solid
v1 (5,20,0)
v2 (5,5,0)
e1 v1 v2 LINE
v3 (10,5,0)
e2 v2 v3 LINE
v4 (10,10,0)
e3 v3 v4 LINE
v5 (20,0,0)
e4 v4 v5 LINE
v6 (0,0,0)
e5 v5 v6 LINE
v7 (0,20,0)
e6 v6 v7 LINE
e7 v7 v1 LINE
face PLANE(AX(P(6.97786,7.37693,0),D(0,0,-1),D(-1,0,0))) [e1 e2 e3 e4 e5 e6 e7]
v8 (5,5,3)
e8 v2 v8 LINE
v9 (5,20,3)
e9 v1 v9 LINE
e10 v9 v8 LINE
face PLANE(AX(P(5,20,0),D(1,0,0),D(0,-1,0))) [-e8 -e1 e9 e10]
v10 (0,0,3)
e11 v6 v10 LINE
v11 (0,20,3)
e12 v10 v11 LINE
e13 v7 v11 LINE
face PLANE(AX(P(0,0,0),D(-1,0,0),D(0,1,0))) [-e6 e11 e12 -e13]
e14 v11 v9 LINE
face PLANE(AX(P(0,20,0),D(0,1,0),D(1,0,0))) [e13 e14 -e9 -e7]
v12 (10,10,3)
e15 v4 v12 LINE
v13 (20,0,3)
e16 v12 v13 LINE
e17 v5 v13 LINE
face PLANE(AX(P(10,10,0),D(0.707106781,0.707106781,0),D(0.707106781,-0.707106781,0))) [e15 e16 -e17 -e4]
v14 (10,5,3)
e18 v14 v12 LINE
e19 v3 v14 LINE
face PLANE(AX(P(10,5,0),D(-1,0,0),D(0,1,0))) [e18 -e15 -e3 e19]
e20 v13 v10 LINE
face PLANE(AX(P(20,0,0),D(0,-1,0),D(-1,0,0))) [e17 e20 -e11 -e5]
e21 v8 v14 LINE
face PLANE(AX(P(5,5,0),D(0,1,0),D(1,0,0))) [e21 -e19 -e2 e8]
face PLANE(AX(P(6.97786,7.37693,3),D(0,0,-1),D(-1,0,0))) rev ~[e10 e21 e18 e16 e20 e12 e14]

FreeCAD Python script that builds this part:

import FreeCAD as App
import Part
import Sketcher

V = App.Vector
Q = App.Units.Quantity

doc = App.newDocument("Part")
body = doc.addObject("PartDesign::Body", "Body")

# Sketch on XY plane
sketch1 = doc.addObject("Sketcher::SketchObject", "Sketch")
body.addObject(sketch1)
sketch1.AttachmentSupport = (doc.XY_Plane, [""])
sketch1.MapMode = "FlatFace"
sketch1.addGeometry([
    Part.LineSegment(V(0, 20, 0), V(0, 0, 0)),  # 0
    Part.LineSegment(V(0, 0, 0), V(20, 0, 0)),  # 1
    Part.LineSegment(V(20, 0, 0), V(10, 10, 0)),  # 2
    Part.LineSegment(V(10, 10, 0), V(10, 5, 0)),  # 3
    Part.LineSegment(V(10, 5, 0), V(5, 5, 0)),  # 4
    Part.LineSegment(V(5, 5, 0), V(5, 20, 0)),  # 5
    Part.LineSegment(V(5, 20, 0), V(0, 20, 0)),  # 6
], False)
sketch1.addConstraint([
    Sketcher.Constraint("Coincident", 0, 2, 1, 1),
    Sketcher.Constraint("Coincident", 1, 2, 2, 1),
    Sketcher.Constraint("Coincident", 2, 2, 3, 1),
    Sketcher.Constraint("Coincident", 3, 2, 4, 1),
    Sketcher.Constraint("Coincident", 4, 2, 5, 1),
    Sketcher.Constraint("Coincident", 5, 2, 6, 1),
    Sketcher.Constraint("Coincident", 6, 2, 0, 1),
    Sketcher.Constraint("Vertical", 0),
    Sketcher.Constraint("Horizontal", 1),
    Sketcher.Constraint("Vertical", 3),
    Sketcher.Constraint("Horizontal", 4),
    Sketcher.Constraint("Vertical", 5),
    Sketcher.Constraint("Horizontal", 6),
    Sketcher.Constraint("Coincident", 0, 2, -1, 1),
    Sketcher.Constraint("Equal", 4, 6),
    Sketcher.Constraint("Equal", 1, 0),
    Sketcher.Constraint("Equal", 6, 3),
    Sketcher.Constraint("DistanceX", 1, 1, 1, 2, Q("20 mm")),
    Sketcher.Constraint("DistanceX", 4, 2, 4, 1, Q("5 mm")),
    Sketcher.Constraint("DistanceY", 5, 1, 5, 2, Q("15 mm")),
])
pad1 = doc.addObject("PartDesign::Pad", "Pad")
body.addObject(pad1)
pad1.Profile = sketch1
pad1.Length = 3

doc.recompute()
